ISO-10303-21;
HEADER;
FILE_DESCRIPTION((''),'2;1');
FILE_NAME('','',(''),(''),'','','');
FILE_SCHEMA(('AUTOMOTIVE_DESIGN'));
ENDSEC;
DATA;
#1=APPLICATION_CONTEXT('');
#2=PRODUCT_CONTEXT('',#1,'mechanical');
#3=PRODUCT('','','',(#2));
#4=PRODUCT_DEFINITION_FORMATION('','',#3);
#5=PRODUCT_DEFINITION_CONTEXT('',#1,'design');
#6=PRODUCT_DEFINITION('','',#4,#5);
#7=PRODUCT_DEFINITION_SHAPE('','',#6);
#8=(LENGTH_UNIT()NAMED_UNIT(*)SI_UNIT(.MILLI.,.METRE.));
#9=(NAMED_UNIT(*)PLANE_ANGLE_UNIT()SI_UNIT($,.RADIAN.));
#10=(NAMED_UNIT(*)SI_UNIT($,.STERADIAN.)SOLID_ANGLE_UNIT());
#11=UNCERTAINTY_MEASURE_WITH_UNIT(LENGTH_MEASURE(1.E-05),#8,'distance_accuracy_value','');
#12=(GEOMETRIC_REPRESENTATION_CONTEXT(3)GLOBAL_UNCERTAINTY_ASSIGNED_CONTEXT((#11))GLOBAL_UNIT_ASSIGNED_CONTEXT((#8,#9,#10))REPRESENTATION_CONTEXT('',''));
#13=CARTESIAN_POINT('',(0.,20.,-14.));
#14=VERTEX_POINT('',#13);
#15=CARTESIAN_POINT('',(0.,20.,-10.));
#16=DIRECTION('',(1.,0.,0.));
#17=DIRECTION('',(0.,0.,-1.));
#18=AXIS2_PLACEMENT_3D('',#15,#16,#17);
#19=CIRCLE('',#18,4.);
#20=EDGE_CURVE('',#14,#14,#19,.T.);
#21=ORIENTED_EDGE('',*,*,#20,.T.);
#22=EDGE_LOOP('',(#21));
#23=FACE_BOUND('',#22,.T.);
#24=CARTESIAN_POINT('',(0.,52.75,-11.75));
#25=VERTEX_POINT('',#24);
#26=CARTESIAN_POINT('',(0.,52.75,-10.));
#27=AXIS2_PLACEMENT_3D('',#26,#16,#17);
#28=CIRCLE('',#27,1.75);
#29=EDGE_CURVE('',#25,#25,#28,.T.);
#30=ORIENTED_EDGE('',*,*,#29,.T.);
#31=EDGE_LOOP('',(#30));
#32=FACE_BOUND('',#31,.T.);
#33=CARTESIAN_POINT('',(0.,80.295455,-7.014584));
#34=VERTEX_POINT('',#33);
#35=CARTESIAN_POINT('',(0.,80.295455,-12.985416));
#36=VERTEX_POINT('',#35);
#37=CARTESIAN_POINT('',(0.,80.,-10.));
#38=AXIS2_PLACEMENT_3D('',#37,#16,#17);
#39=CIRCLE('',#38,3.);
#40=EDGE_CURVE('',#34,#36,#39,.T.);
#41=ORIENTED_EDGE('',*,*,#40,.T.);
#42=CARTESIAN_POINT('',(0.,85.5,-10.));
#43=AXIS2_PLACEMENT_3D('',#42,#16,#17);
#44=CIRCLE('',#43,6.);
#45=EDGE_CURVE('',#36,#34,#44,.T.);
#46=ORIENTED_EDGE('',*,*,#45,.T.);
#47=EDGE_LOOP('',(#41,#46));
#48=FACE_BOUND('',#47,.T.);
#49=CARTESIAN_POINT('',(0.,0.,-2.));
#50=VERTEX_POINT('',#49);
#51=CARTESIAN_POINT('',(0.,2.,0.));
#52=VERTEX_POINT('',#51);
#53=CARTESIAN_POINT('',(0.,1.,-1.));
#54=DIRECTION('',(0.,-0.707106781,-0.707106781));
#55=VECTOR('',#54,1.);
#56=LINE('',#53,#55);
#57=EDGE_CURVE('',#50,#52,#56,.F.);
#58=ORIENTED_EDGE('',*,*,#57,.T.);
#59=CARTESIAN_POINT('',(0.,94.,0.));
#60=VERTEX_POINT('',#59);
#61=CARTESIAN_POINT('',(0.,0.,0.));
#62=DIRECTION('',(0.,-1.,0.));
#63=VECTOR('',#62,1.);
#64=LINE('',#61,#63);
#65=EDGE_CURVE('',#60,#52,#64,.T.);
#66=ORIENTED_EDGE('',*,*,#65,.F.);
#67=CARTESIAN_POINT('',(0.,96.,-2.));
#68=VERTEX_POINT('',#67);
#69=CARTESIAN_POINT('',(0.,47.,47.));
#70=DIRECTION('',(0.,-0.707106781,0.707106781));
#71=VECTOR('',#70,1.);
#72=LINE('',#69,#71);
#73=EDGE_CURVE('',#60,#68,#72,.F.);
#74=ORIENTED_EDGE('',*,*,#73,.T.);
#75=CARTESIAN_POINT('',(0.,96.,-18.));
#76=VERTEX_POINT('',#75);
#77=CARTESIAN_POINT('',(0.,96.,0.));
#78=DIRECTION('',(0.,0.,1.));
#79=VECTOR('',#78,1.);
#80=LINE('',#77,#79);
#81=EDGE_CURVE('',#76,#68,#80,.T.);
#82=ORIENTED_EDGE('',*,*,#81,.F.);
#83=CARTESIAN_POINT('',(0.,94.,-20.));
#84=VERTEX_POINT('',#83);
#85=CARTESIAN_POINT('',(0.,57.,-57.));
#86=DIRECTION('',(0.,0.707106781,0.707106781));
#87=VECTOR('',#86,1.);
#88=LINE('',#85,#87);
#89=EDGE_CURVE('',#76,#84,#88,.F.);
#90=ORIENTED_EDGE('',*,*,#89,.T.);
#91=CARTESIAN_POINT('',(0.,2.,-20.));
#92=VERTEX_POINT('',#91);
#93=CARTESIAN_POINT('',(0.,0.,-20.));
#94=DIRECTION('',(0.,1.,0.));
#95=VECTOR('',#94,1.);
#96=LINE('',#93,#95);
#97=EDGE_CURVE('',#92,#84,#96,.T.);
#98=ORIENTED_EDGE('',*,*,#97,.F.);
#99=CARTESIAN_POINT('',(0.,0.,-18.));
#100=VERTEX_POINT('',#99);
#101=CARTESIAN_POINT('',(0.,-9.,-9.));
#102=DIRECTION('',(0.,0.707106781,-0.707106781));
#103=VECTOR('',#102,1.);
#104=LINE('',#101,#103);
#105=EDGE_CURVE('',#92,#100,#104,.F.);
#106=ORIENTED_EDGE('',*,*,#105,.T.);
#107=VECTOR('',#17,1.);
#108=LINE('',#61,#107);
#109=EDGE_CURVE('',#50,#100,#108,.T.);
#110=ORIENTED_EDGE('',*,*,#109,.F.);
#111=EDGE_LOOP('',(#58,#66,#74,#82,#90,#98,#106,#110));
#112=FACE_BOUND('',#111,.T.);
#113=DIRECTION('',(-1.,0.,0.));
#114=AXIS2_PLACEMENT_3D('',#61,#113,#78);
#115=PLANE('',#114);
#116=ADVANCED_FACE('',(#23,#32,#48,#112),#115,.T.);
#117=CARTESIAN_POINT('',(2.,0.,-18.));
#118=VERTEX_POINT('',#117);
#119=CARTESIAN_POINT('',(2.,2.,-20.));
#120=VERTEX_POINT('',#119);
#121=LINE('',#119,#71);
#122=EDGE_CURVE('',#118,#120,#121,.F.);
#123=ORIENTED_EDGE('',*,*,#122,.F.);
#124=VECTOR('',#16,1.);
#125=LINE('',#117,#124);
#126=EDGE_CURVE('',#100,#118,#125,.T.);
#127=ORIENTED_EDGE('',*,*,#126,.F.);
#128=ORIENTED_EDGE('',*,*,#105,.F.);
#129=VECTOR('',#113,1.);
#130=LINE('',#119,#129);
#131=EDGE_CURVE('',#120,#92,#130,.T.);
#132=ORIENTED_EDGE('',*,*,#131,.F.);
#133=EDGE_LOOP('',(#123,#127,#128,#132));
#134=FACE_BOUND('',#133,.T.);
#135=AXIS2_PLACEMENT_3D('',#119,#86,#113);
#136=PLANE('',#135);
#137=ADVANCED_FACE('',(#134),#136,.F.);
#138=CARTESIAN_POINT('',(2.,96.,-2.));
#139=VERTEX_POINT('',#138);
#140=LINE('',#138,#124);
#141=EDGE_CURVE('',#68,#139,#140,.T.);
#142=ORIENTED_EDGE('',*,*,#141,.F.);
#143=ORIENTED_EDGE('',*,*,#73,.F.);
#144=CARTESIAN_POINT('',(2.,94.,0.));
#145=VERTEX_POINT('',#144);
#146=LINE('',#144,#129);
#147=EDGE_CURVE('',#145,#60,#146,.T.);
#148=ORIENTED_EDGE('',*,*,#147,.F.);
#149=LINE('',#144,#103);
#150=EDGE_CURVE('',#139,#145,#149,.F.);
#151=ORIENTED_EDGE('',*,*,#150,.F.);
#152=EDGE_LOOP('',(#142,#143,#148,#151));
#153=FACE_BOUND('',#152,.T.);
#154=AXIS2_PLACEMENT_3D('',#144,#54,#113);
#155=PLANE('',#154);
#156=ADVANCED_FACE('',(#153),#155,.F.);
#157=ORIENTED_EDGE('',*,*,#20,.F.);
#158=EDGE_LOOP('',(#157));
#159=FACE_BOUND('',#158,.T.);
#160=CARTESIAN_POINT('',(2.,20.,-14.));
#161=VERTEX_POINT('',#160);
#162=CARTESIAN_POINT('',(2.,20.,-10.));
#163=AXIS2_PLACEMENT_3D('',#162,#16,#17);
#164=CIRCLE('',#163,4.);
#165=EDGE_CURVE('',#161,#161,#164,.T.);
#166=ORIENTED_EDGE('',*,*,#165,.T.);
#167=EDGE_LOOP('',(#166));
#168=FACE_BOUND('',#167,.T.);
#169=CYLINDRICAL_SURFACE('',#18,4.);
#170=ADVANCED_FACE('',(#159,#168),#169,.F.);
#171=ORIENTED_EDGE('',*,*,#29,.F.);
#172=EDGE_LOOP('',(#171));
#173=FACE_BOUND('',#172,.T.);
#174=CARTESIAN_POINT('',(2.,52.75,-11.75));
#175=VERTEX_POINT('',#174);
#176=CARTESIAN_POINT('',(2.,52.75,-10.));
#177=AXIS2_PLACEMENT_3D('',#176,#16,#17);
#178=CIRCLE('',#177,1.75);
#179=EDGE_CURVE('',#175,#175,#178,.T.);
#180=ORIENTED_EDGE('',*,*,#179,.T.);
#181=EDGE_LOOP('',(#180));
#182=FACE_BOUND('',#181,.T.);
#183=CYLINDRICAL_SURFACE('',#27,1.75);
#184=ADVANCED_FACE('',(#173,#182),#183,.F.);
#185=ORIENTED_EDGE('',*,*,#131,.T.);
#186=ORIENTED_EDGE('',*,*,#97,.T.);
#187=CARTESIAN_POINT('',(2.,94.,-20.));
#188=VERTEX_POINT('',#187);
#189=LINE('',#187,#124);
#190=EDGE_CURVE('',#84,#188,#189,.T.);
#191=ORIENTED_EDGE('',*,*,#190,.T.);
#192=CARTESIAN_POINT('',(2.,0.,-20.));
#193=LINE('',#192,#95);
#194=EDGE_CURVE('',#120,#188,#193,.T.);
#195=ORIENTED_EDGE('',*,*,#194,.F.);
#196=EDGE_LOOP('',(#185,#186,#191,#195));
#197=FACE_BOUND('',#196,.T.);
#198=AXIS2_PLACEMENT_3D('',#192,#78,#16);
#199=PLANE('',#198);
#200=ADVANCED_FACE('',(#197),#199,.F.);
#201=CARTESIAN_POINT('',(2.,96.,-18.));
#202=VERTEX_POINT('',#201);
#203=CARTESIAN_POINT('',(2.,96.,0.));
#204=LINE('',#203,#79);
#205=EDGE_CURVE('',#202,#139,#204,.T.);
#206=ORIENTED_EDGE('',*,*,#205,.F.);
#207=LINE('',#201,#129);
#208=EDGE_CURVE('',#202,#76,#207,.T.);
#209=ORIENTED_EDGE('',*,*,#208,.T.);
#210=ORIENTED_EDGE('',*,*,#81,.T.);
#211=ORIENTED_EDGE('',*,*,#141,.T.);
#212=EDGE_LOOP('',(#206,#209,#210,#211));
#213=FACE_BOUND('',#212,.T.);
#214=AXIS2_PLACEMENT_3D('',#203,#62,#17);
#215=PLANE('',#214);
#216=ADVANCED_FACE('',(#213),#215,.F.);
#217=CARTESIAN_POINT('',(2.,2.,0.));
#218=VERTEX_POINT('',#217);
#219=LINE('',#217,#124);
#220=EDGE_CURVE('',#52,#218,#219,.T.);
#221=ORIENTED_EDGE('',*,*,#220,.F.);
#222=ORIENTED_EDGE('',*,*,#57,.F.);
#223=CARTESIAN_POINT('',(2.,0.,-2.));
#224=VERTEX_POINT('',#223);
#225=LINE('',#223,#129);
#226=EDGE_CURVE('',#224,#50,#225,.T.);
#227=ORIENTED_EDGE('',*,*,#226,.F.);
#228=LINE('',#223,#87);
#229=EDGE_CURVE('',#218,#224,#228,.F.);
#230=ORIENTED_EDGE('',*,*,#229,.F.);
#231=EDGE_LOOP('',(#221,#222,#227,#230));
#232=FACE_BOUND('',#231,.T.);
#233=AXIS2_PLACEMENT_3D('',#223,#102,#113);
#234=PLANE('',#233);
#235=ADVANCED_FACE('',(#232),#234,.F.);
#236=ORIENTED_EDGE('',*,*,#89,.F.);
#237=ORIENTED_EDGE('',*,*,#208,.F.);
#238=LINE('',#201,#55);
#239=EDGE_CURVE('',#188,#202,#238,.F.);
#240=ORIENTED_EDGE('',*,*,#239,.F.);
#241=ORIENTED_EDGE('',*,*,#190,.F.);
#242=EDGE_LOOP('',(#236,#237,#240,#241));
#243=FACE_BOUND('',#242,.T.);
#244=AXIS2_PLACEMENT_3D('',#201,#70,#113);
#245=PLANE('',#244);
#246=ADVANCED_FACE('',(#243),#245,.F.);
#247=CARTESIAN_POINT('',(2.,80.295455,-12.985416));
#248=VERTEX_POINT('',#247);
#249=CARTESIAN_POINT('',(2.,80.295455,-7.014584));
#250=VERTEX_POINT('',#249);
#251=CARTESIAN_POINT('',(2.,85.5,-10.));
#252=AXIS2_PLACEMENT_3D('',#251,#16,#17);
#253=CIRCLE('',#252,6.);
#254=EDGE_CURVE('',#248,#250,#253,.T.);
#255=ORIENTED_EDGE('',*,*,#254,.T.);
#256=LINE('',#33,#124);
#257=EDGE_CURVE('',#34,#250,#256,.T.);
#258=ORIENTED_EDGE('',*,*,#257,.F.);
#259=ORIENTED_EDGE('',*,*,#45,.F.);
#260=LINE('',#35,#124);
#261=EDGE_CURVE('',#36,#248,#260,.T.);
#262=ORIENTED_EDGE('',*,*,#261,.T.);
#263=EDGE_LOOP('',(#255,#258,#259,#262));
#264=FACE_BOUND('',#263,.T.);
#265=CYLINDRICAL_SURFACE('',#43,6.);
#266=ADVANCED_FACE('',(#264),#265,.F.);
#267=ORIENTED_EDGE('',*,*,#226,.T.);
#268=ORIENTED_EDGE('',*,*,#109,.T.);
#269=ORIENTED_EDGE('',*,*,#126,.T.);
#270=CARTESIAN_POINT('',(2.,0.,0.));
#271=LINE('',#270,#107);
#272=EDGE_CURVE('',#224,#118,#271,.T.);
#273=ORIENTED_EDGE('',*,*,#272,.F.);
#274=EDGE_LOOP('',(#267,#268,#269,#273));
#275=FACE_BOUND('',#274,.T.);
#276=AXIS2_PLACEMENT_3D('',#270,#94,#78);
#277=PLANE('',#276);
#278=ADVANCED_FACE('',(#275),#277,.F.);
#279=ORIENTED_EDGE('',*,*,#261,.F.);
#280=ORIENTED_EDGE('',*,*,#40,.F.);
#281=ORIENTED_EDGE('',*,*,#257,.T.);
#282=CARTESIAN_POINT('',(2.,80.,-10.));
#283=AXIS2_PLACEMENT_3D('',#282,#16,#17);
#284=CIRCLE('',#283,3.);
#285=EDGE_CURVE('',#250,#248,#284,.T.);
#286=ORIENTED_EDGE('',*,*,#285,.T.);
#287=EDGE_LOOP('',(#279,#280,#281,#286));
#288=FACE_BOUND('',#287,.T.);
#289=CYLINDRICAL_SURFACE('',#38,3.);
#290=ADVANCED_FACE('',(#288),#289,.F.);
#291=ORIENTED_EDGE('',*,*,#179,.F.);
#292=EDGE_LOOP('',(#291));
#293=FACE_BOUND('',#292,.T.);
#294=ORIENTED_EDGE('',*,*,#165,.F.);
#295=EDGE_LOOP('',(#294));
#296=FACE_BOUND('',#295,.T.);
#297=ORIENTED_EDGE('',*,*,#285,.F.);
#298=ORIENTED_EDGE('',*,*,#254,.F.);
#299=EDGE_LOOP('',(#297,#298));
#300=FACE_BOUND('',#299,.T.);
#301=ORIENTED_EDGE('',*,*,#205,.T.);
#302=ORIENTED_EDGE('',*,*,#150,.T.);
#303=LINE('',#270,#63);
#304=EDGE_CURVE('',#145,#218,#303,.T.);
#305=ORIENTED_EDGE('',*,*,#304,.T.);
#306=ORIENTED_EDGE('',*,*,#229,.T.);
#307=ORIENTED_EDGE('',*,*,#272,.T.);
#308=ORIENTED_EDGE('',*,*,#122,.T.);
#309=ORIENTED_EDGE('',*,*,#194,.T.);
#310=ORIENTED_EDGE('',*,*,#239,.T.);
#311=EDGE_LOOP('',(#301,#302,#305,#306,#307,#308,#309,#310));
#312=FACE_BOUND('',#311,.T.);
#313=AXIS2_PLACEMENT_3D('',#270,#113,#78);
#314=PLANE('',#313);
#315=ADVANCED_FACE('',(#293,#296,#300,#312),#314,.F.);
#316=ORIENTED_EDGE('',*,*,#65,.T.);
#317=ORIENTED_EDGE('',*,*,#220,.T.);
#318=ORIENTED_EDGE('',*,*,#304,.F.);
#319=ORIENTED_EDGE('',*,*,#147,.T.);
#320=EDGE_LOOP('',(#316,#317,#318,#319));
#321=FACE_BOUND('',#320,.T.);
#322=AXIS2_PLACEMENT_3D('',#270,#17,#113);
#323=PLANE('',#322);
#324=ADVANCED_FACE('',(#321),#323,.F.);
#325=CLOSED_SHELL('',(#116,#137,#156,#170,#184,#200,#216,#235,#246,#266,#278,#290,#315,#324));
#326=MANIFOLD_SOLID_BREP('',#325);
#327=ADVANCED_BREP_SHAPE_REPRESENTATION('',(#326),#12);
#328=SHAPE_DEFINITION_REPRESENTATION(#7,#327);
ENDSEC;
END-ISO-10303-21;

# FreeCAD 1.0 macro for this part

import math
import FreeCAD as App
import Part
import Sketcher
from FreeCAD import Vector
Q = App.Units.Quantity


def edges_at(feature, points):
    """Names of the edges that pass closest to the given points."""
    edges = feature.Shape.Edges
    near = lambda p: min(range(len(edges)), key=lambda i: edges[i].distToShape(Part.Vertex(*p))[0])
    return sorted({f"Edge{near(p) + 1}" for p in points})


def add_polygon(sketch, points):
    """Adds a closed chain of lines whose ends are joined by coincident constraints."""
    first, n = sketch.GeometryCount, len(points)
    for a, b in zip(points, points[1:] + points[:1]):
        sketch.addGeometry(Part.LineSegment(App.Vector(*a, 0), App.Vector(*b, 0)), False)
    for i in range(n):
        sketch.addConstraint(Sketcher.Constraint("Coincident", first + i, 2, first + (i + 1) % n, 1))

doc = App.newDocument("Part")
body = doc.addObject("PartDesign::Body", "Body")

# Sketch on YZ plane
sketch1 = doc.addObject("Sketcher::SketchObject", "Sketch")
body.addObject(sketch1)
sketch1.AttachmentSupport = (doc.YZ_Plane, [""])
sketch1.MapMode = "FlatFace"
add_polygon(sketch1, [(96, 0), (0, 0), (0, -20), (96, -20)])  # lines 0-3
sketch1.addConstraint(Sketcher.Constraint("Horizontal", 0))
sketch1.addConstraint(Sketcher.Constraint("Vertical", 1))
sketch1.addConstraint(Sketcher.Constraint("Horizontal", 2))
sketch1.addConstraint(Sketcher.Constraint("Vertical", 3))
sketch1.addConstraint(Sketcher.Constraint("Coincident", 0, 2, -1, 1))
sketch1.addConstraint(Sketcher.Constraint("DistanceX", 0, 2, 0, 1, Q("96 mm")))
sketch1.addConstraint(Sketcher.Constraint("DistanceY", 1, 2, 1, 1, Q("20 mm")))
pad1 = doc.addObject("PartDesign::Pad", "Pad")
body.addObject(pad1)
pad1.Profile = sketch1
pad1.Length = 2

# Sketch on YZ plane
sketch2 = doc.addObject("Sketcher::SketchObject", "Sketch001")
body.addObject(sketch2)
sketch2.AttachmentSupport = (doc.YZ_Plane, [""])
sketch2.MapMode = "FlatFace"
sketch2.AttachmentOffset = App.Placement(Vector(0, 0, 2), App.Rotation())
sketch2.addGeometry(Part.Circle(Vector(52.8, -10, 0), Vector(0, 0, 1), 1.8), False)
sketch2.addGeometry(Part.Circle(Vector(20, -10, 0), Vector(0, 0, 1), 4), False)
sketch2.addGeometry(Part.ArcOfCircle(Part.Circle(Vector(85.5, -10, 0), Vector(0, 0, 1), 6), math.radians(-150), math.radians(150)), False)
sketch2.addGeometry(Part.ArcOfCircle(Part.Circle(Vector(80, -10, 0), Vector(0, 0, 1), 3), math.radians(84), math.radians(276)), False)
sketch2.addConstraint(Sketcher.Constraint("Coincident", 2, 1, 3, 2))
sketch2.addConstraint(Sketcher.Constraint("Coincident", 3, 1, 2, 2))
sketch2.addConstraint(Sketcher.Constraint("Horizontal", 0, 3, 1, 3))
sketch2.addConstraint(Sketcher.Constraint("Horizontal", 1, 3, 2, 3))
sketch2.addConstraint(Sketcher.Constraint("Horizontal", 2, 3, 3, 3))
sketch2.addConstraint(Sketcher.Constraint("Diameter", 1, Q("8 mm")))
sketch2.addConstraint(Sketcher.Constraint("Radius", 2, Q("6 mm")))
sketch2.addConstraint(Sketcher.Constraint("Radius", 3, Q("3 mm")))
sketch2.addConstraint(Sketcher.Constraint("Diameter", 0, Q("3.5 mm")))
sketch2.addConstraint(Sketcher.Constraint("DistanceY", 0, 3, -1, 1, Q("10 mm")))
sketch2.addConstraint(Sketcher.Constraint("DistanceX", -1, 1, 1, 3, Q("20 mm")))
sketch2.addConstraint(Sketcher.Constraint("DistanceX", -1, 1, 3, 3, Q("80 mm")))
sketch2.addConstraint(Sketcher.Constraint("DistanceX", -1, 1, 2, 3, Q("85.5 mm")))
sketch2.addConstraint(Sketcher.Constraint("DistanceX", -1, 1, 0, 3, Q("52.75 mm")))
pocket1 = doc.addObject("PartDesign::Pocket", "Pocket")
body.addObject(pocket1)
pocket1.Profile = sketch2
pocket1.Type = "ThroughAll"
doc.recompute()

chamfer = doc.addObject("PartDesign::Chamfer", "Chamfer")
body.addObject(chamfer)
chamfer.Base = (pocket1, edges_at(pocket1, [
    (1, 96, 0),
    (1, 96, -20),
    (1, 0, -20),
    (1, 0, 0),
]))
chamfer.Size = 2

doc.recompute()
